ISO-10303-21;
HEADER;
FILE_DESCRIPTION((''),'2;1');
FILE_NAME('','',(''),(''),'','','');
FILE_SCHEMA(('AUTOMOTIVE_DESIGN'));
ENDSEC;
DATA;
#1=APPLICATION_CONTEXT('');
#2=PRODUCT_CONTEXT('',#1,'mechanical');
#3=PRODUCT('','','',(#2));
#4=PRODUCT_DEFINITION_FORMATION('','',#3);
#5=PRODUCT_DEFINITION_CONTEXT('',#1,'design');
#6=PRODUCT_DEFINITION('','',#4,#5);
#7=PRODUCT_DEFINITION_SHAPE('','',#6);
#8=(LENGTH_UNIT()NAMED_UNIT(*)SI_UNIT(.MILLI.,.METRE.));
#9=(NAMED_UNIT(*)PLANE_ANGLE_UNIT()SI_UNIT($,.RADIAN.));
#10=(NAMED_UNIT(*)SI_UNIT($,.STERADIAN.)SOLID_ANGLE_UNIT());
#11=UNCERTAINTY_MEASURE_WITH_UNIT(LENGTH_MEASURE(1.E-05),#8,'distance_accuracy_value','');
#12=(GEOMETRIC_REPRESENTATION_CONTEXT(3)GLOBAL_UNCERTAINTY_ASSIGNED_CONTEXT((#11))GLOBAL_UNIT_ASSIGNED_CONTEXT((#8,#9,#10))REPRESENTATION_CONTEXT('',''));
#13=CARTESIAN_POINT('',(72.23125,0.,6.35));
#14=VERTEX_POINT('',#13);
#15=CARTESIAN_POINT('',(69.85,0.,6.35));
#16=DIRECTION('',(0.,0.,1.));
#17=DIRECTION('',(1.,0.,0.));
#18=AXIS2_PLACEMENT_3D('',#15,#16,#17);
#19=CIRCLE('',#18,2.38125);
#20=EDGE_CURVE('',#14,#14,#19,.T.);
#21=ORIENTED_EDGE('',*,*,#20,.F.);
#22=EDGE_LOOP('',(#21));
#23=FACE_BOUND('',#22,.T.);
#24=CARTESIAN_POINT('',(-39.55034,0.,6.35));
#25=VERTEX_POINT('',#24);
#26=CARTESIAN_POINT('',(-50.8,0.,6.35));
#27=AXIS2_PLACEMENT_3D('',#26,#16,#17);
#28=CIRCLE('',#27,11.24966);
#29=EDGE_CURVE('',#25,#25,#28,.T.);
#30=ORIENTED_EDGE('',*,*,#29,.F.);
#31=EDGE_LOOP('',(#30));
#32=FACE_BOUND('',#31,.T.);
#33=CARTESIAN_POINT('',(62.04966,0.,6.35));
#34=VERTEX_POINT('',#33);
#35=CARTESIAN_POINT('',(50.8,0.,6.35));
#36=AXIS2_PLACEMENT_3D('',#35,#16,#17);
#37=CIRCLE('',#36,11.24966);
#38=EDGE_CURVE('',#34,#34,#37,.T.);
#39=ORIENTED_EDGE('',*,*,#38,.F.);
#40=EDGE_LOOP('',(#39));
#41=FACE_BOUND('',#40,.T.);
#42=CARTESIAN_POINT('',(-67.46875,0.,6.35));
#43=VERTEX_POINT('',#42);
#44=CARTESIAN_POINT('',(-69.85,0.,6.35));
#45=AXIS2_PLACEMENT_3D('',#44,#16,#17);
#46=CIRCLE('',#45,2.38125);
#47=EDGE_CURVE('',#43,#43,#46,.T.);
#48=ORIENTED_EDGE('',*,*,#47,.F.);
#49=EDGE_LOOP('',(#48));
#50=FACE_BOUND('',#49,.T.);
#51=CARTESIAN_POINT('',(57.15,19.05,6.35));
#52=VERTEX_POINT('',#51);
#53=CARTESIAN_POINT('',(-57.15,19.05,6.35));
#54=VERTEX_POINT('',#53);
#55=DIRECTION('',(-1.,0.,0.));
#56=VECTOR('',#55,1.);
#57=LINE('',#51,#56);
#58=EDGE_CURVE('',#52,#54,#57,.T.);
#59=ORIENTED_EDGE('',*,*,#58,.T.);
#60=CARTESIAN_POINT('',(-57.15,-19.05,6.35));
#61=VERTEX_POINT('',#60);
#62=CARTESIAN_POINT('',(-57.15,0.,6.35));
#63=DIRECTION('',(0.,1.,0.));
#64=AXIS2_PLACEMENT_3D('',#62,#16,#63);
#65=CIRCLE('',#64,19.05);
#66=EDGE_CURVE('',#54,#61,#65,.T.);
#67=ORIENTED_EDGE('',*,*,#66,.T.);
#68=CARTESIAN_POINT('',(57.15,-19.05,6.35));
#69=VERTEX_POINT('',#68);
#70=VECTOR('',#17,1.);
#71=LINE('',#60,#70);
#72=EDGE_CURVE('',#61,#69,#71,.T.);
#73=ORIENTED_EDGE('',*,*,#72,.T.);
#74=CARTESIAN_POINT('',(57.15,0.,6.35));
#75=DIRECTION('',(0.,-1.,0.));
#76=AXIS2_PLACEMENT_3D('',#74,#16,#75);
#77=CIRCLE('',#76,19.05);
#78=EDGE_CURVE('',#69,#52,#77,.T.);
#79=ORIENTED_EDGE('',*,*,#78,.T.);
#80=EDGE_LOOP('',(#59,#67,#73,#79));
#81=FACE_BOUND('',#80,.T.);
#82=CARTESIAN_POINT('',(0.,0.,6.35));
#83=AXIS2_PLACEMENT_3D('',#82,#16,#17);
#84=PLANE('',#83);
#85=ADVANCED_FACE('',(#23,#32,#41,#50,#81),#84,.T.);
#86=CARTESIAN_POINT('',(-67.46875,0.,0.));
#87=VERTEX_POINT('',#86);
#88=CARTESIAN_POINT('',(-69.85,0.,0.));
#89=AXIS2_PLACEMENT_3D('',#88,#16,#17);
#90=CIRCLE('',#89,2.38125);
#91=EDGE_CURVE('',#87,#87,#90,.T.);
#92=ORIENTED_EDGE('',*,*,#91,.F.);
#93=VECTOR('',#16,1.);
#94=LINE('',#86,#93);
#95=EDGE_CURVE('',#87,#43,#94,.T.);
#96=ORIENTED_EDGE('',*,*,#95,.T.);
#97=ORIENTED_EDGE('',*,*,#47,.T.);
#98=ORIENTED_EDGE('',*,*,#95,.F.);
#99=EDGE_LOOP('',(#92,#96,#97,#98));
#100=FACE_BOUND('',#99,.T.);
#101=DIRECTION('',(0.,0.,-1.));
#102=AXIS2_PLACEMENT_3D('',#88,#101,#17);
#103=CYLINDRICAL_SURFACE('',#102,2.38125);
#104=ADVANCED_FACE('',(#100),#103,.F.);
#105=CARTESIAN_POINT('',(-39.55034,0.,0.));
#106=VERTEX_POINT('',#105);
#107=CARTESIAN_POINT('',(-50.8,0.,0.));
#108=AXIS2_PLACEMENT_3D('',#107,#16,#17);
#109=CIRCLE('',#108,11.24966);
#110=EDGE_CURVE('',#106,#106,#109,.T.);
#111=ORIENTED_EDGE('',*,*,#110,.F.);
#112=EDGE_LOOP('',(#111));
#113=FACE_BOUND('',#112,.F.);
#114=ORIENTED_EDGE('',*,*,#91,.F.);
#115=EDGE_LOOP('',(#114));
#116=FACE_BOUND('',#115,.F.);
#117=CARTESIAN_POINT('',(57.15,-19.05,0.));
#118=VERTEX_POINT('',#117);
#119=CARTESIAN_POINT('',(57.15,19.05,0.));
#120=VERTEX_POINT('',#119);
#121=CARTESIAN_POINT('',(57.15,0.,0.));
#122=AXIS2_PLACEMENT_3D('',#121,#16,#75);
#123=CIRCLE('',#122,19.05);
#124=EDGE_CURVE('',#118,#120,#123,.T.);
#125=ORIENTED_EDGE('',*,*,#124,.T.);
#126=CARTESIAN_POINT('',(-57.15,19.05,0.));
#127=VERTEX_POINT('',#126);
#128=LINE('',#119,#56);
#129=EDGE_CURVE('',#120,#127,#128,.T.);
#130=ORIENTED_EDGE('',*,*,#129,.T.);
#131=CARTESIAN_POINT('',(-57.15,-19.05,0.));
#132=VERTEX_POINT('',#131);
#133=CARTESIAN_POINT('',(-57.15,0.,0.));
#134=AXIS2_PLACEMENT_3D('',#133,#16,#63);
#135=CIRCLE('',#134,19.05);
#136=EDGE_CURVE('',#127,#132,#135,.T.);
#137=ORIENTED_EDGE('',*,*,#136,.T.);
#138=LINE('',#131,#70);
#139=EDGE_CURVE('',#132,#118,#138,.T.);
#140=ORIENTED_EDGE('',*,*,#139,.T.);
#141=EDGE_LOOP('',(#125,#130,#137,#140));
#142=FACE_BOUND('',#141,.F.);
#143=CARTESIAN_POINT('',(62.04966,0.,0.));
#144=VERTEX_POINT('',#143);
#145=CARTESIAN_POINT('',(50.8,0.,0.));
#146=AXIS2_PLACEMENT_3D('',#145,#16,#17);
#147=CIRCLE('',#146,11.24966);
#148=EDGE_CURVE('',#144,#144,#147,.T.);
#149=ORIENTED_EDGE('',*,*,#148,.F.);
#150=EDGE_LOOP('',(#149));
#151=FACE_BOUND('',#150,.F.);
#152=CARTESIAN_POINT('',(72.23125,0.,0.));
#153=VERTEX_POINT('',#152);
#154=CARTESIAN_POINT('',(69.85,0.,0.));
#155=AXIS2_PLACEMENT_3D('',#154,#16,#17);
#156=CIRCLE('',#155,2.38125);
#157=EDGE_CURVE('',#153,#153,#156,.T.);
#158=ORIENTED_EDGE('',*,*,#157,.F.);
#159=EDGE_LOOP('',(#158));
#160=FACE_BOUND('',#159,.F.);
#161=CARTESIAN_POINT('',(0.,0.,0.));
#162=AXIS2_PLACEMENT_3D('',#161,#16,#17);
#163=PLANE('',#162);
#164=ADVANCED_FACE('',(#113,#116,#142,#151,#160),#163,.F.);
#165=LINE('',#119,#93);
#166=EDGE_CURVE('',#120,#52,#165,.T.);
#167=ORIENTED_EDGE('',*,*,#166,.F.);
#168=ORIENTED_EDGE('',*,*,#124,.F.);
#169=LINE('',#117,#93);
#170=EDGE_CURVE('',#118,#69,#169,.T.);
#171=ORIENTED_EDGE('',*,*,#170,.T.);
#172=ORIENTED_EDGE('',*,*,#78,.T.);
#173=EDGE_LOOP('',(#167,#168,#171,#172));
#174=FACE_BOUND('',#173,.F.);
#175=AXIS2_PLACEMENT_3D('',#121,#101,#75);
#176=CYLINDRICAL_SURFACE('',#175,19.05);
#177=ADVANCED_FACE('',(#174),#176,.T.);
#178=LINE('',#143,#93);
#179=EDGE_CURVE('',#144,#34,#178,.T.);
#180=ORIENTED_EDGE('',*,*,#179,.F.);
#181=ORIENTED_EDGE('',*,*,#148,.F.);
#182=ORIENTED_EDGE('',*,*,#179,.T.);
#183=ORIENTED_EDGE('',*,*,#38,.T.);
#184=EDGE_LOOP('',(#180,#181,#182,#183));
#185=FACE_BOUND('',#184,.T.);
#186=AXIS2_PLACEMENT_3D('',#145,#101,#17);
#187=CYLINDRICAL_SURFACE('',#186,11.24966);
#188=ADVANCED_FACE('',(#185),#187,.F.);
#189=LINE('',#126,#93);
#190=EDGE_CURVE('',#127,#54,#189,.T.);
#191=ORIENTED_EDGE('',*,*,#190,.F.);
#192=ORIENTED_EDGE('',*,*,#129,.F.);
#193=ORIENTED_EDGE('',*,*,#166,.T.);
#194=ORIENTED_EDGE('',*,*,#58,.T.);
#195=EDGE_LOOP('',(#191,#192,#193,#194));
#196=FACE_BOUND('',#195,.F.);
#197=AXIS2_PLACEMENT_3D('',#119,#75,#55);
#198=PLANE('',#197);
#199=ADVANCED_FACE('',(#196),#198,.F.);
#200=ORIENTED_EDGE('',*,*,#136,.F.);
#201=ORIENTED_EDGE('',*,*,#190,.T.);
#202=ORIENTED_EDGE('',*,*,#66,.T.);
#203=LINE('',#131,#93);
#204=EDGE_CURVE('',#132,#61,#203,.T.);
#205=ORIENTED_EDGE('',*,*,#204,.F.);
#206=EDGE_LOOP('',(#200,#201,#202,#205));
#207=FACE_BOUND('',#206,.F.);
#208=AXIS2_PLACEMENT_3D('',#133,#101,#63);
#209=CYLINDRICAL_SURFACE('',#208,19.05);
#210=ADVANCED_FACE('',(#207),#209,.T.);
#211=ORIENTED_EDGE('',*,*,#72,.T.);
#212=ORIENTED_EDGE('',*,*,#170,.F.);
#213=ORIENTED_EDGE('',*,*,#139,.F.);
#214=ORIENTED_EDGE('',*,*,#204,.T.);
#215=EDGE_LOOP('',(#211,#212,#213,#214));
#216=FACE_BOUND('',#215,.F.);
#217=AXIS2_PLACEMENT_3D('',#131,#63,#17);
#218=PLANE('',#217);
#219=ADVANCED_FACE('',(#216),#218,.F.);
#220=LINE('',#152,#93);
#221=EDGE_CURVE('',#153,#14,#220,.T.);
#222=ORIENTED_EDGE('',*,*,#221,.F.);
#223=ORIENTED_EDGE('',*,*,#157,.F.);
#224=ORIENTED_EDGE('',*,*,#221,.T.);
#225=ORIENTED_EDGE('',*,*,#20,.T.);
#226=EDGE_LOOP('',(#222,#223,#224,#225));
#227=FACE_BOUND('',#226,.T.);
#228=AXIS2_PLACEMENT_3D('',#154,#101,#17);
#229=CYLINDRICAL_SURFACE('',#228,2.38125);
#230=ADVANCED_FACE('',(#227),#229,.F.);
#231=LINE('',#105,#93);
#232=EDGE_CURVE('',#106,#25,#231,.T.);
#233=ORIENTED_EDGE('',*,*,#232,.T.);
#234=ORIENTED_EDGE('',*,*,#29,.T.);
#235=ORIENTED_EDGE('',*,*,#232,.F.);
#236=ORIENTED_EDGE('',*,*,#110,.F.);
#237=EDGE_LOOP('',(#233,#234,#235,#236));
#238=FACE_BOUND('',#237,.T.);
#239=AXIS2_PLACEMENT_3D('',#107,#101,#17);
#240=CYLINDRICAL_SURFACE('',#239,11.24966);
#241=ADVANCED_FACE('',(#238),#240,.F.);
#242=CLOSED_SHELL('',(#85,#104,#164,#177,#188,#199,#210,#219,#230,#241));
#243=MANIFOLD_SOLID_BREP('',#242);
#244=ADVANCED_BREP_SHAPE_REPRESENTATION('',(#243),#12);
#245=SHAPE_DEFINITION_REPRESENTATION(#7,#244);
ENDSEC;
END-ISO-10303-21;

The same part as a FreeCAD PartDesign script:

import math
import FreeCAD as App
import Part
import Sketcher
Q = App.Units.Quantity

doc = App.newDocument("Part")
body = doc.addObject("PartDesign::Body", "Body")

sketch1 = body.newObject("Sketcher::SketchObject", "Sketch")
sketch1.AttachmentSupport = (doc.getObject("XY_Plane"), [""])
sketch1.MapMode = "FlatFace"
sketch1.addGeometry([
    Part.LineSegment(App.Vector(57, 19, 0), App.Vector(-57, 19, 0)),
    Part.ArcOfCircle(Part.Circle(App.Vector(-57, 0, 0), App.Vector(0, 0, 1), 19), math.radians(90), math.radians(270)),
    Part.LineSegment(App.Vector(-57, -19, 0), App.Vector(57, -19, 0)),
    Part.ArcOfCircle(Part.Circle(App.Vector(57, 0, 0), App.Vector(0, 0, 1), 19), math.radians(-90), math.radians(90)),
    Part.Circle(App.Vector(-51, 0, 0), App.Vector(0, 0, 1), 11),
    Part.Circle(App.Vector(51, 0, 0), App.Vector(0, 0, 1), 11),
], False)
sketch1.addConstraint([
    Sketcher.Constraint("Tangent", 0, 2, 1, 1),
    Sketcher.Constraint("Tangent", 1, 2, 2, 1),
    Sketcher.Constraint("Tangent", 2, 2, 3, 1),
    Sketcher.Constraint("Tangent", 3, 2, 0, 1),
    Sketcher.Constraint("Horizontal", 0),
    Sketcher.Constraint("Horizontal", 2),
    Sketcher.Constraint("Equal", 4, 5),
    Sketcher.Constraint("Symmetric", 1, 3, 3, 3, -1, 1),
    Sketcher.Constraint("Symmetric", 4, 3, 5, 3, -1, 1),
    Sketcher.Constraint("PointOnObject", 4, 3, -1),
    Sketcher.Constraint("Radius", 1, Q("0.75 in")),
    Sketcher.Constraint("DistanceX", 0, 2, 0, 1, Q("4.5 in")),
    Sketcher.Constraint("DistanceX", 4, 3, -1, 1, Q("2 in")),
    Sketcher.Constraint("Diameter", 4, Q("0.8858 in")),
])
pad1 = body.newObject("PartDesign::Pad", "Pad")
pad1.Profile = sketch1
pad1.Length = Q("0.25 in")

sketch2 = body.newObject("Sketcher::SketchObject", "Sketch001")
sketch2.AttachmentSupport = (doc.getObject("XY_Plane"), [""])
sketch2.MapMode = "FlatFace"
sketch2.addGeometry([
    Part.Circle(App.Vector(-69.8, 0, 0), App.Vector(0, 0, 1), 2.4),
    Part.Circle(App.Vector(69.8, 0, 0), App.Vector(0, 0, 1), 2.4),
], False)
sketch2.addConstraint([
    Sketcher.Constraint("Equal", 0, 1),
    Sketcher.Constraint("Symmetric", 0, 3, 1, 3, -1, 1),
    Sketcher.Constraint("PointOnObject", 0, 3, -1),
    Sketcher.Constraint("Diameter", 0, Q("0.1875 in")),
    Sketcher.Constraint("DistanceX", 0, 3, 1, 3, Q("5.5 in")),
])
pocket1 = body.newObject("PartDesign::Pocket", "Pocket")
pocket1.Profile = sketch2
pocket1.Length = Q("0.25 in")
pocket1.Reversed = True

doc.recompute()
